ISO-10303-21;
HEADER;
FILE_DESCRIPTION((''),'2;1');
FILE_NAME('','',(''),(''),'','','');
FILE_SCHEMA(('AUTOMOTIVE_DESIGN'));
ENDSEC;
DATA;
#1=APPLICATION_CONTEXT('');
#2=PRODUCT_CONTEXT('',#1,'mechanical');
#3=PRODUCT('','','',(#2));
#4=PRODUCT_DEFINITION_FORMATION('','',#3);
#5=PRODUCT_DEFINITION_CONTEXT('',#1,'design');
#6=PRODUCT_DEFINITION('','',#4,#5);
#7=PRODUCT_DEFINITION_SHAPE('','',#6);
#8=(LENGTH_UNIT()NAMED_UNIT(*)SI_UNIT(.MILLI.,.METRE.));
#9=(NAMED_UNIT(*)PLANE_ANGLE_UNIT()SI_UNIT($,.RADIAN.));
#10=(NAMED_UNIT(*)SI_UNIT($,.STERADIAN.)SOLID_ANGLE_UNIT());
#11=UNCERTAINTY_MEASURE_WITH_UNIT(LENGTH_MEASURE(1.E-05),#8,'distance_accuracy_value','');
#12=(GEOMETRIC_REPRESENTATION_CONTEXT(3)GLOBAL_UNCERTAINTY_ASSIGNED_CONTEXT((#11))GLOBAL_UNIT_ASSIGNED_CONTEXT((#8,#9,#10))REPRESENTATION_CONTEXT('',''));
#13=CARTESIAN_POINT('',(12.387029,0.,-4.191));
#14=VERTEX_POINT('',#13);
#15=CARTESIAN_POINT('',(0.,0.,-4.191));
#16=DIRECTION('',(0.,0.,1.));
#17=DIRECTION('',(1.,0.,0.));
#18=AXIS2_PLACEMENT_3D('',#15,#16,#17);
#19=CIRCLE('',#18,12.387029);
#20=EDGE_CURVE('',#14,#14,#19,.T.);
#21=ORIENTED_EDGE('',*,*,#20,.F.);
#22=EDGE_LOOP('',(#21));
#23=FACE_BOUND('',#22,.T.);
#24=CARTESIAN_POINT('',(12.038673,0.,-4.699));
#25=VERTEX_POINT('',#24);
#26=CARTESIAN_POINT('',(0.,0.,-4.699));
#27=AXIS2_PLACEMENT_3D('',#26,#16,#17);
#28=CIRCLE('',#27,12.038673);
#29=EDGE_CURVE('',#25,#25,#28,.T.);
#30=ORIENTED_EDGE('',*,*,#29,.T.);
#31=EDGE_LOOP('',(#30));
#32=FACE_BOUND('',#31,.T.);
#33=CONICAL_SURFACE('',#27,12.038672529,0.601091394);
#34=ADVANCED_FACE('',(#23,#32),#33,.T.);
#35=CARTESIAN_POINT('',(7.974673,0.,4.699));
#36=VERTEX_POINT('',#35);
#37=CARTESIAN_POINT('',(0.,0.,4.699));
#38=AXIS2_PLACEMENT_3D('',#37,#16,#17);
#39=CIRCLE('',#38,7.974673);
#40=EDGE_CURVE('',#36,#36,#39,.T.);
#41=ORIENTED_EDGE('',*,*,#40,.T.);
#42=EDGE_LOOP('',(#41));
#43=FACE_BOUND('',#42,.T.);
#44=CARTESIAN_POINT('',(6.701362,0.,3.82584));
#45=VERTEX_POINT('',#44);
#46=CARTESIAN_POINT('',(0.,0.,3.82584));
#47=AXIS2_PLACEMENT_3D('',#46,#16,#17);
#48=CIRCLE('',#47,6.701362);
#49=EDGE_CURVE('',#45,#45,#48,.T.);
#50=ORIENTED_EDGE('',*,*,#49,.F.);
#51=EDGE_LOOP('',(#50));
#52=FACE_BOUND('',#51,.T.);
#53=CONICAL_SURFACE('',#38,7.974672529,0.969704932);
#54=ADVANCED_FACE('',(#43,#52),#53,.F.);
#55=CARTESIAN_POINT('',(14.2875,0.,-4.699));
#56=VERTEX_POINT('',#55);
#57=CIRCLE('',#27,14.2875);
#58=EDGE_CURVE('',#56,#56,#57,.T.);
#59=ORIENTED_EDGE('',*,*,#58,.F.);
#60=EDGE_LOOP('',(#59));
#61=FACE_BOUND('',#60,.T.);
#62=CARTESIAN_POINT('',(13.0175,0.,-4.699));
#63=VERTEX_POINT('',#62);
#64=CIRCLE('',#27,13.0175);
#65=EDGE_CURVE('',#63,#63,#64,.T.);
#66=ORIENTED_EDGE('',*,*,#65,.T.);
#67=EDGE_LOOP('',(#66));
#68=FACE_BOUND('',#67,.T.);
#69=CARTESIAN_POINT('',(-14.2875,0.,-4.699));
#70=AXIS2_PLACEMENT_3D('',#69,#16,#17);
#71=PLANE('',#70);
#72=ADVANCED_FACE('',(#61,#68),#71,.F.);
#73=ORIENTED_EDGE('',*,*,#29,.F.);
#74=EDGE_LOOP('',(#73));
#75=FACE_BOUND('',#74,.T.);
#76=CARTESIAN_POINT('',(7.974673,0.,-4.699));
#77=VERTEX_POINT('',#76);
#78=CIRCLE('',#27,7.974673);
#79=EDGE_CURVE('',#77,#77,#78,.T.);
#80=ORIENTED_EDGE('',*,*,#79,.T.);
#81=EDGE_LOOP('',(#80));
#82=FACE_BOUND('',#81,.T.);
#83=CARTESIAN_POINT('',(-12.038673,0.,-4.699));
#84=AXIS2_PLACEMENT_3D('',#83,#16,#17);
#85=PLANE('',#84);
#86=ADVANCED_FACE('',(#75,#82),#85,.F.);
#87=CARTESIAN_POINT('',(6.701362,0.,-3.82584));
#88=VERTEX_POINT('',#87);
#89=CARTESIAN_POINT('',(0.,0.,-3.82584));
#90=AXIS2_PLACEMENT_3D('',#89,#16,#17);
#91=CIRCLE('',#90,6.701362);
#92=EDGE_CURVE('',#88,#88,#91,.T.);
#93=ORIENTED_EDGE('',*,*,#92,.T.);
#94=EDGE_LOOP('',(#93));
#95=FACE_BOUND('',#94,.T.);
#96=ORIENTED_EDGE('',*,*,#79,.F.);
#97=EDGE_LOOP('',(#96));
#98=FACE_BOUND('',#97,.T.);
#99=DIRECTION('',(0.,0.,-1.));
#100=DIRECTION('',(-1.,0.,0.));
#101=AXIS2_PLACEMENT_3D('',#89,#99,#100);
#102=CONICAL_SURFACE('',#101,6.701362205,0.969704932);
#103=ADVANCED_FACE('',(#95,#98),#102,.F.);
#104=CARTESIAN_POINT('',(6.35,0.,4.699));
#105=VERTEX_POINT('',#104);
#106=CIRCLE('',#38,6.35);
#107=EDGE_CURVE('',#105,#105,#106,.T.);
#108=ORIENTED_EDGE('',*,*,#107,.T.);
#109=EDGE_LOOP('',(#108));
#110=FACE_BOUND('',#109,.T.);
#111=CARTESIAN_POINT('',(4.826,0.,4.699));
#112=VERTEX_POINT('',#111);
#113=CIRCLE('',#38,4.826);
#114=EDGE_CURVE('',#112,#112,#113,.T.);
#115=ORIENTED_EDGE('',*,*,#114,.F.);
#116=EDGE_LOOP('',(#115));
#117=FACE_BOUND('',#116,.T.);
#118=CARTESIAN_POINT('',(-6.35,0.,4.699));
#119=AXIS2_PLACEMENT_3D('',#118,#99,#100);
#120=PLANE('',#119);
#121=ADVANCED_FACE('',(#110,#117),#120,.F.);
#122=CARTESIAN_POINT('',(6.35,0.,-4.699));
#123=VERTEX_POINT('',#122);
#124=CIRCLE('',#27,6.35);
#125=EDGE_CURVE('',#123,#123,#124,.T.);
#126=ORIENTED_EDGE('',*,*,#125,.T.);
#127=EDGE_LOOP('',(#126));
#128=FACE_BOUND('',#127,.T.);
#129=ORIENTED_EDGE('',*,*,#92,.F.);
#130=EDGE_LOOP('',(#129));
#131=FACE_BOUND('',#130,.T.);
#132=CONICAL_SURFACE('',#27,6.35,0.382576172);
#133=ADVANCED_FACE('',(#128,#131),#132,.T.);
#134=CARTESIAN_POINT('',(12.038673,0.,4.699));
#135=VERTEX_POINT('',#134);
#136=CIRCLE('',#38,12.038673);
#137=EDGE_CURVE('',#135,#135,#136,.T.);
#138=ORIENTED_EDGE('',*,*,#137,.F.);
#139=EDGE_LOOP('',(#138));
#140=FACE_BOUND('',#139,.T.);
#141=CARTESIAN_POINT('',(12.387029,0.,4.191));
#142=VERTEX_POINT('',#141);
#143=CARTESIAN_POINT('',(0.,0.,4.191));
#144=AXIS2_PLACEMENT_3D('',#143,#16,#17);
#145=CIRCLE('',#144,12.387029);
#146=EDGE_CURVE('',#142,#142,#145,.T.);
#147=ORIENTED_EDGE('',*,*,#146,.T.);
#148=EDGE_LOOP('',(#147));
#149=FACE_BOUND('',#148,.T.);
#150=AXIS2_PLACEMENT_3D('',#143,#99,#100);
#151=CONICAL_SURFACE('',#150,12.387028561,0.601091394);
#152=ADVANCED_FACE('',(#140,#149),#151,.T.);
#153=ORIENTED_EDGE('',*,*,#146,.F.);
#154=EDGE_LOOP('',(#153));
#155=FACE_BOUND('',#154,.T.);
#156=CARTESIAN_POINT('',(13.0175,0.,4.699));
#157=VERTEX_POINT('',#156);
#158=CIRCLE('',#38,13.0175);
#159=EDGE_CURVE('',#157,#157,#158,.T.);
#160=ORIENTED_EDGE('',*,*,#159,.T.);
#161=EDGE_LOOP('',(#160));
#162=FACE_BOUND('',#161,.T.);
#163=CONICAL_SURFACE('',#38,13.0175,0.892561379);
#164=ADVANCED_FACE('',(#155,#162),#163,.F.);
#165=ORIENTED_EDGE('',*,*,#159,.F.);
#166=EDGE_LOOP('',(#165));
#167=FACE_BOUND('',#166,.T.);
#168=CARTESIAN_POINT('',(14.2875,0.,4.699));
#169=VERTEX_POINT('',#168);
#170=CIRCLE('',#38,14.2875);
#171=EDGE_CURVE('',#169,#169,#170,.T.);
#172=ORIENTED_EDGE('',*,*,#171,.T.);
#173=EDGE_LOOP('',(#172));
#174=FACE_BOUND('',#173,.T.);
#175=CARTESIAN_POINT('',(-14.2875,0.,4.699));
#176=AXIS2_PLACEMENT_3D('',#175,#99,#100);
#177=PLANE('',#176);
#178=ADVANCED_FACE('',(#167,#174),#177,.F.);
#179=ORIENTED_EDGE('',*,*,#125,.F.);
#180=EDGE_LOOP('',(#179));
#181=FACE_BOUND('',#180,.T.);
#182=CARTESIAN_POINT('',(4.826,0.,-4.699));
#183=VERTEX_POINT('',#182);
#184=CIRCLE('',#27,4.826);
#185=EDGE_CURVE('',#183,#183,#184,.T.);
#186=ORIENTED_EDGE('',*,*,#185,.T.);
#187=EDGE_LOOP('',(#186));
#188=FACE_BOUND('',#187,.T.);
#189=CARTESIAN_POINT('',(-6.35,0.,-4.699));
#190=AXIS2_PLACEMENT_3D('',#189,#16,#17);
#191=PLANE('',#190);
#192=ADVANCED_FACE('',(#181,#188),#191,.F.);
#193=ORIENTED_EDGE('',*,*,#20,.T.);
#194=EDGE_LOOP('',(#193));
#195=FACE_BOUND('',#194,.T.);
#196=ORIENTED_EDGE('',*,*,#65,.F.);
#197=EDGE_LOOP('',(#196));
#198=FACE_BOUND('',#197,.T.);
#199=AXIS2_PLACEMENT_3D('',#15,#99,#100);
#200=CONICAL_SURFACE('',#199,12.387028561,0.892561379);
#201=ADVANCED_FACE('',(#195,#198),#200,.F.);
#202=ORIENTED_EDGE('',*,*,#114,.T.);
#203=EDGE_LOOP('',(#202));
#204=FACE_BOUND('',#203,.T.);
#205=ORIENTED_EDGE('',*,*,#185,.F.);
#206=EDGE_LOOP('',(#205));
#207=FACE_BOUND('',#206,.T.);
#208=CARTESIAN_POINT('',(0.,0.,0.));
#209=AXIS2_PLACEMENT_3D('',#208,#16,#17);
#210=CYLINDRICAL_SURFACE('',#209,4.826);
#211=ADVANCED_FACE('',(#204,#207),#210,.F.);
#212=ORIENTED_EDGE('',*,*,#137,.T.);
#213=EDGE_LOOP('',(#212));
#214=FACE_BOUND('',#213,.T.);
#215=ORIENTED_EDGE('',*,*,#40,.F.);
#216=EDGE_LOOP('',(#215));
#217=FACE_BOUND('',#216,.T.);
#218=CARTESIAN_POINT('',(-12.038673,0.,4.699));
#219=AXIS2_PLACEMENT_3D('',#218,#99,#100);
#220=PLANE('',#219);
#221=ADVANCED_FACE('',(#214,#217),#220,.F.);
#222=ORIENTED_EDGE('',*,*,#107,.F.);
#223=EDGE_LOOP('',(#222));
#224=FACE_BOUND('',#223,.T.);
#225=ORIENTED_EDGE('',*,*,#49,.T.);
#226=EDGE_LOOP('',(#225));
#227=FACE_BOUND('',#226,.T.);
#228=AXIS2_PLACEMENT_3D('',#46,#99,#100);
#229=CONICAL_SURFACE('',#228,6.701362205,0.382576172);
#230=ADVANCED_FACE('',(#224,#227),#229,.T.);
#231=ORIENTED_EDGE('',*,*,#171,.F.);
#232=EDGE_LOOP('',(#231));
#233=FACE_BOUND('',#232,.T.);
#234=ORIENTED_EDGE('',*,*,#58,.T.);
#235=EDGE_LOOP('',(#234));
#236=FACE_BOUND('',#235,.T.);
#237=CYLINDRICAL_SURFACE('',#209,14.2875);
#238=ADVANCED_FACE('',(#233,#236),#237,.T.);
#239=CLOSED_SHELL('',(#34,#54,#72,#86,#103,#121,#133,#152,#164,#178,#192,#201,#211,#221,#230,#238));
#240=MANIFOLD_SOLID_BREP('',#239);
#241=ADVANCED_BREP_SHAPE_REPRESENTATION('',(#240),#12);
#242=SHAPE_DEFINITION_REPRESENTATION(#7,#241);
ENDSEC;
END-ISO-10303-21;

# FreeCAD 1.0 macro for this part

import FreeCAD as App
import Part
import Sketcher
Q = App.Units.Quantity


def add_polygon(sketch, points):
    """Adds a closed chain of lines whose ends are joined by coincident constraints."""
    first, n = sketch.GeometryCount, len(points)
    for a, b in zip(points, points[1:] + points[:1]):
        sketch.addGeometry(Part.LineSegment(App.Vector(*a, 0), App.Vector(*b, 0)), False)
    for i in range(n):
        sketch.addConstraint(Sketcher.Constraint("Coincident", first + i, 2, first + (i + 1) % n, 1))

doc = App.newDocument("Part")
body = doc.addObject("PartDesign::Body", "Body")

# Sketch on XZ plane
sketch1 = body.newObject("Sketcher::SketchObject", "Sketch")
sketch1.AttachmentSupport = (doc.getObject("XZ_Plane"), [""])
sketch1.MapMode = "FlatFace"
add_polygon(sketch1, [(-4.8, -4.7), (-6.3, -4.7), (-6.7, -3.8), (-8, -4.7), (-12, -4.7), (-12.4, -4.2), (-13, -4.7), (-14.3, -4.7), (-14.3, 4.7), (-13, 4.7), (-12.4, 4.2), (-12, 4.7), (-8, 4.7), (-6.7, 3.8), (-6.3, 4.7), (-4.8, 4.7)])  # lines 0-15
sketch1.addConstraint([
    Sketcher.Constraint("Horizontal", 0),
    Sketcher.Constraint("Horizontal", 3),
    Sketcher.Constraint("Horizontal", 6),
    Sketcher.Constraint("Vertical", 7),
    Sketcher.Constraint("Horizontal", 8),
    Sketcher.Constraint("Horizontal", 11),
    Sketcher.Constraint("Horizontal", 14),
    Sketcher.Constraint("Vertical", 15),
    Sketcher.Constraint("Symmetric", 5, 2, 8, 2, -1),
    Sketcher.Constraint("Symmetric", 4, 2, 9, 2, -1),
    Sketcher.Constraint("Symmetric", 3, 2, 10, 2, -1),
    Sketcher.Constraint("Symmetric", 1, 2, 12, 2, -1),
    Sketcher.Constraint("Symmetric", 0, 2, 13, 2, -1),
    Sketcher.Constraint("Perpendicular", 2, 4),
    Sketcher.Constraint("Perpendicular", 10, 12),
    Sketcher.Constraint("Horizontal", 0, 2, 2, 2),
    Sketcher.Constraint("Horizontal", 3, 2, 5, 2),
    Sketcher.Constraint("DistanceX", 0, 2, 0, 1, Q("0.06 in")),
    Sketcher.Constraint("DistanceX", 3, 2, 3, 1, Q("0.16 in")),
    Sketcher.Constraint("DistanceX", 6, 2, 6, 1, Q("0.05 in")),
    Sketcher.Constraint("DistanceY", 7, 1, 7, 2, Q("0.37 in")),
    Sketcher.Constraint("DistanceX", 0, 2, -1, 1, Q("0.25 in")),
    Sketcher.Constraint("Angle", 1, Q("111.92 deg")),
    Sketcher.Constraint("Angle", 2, Q("-145.56 deg")),
    Sketcher.Constraint("Angle", 5, Q("-141.14 deg")),
    Sketcher.Constraint("DistanceY", 3, 2, 4, 2, Q("0.02 in")),
    Sketcher.Constraint("DistanceX", 6, 2, -1, 1, Q("0.5625 in")),
])
revolution = body.newObject("PartDesign::Revolution", "Revolution")
revolution.Profile = sketch1
revolution.ReferenceAxis = (sketch1, ["V_Axis"])
revolution.Angle = 360

doc.recompute()
